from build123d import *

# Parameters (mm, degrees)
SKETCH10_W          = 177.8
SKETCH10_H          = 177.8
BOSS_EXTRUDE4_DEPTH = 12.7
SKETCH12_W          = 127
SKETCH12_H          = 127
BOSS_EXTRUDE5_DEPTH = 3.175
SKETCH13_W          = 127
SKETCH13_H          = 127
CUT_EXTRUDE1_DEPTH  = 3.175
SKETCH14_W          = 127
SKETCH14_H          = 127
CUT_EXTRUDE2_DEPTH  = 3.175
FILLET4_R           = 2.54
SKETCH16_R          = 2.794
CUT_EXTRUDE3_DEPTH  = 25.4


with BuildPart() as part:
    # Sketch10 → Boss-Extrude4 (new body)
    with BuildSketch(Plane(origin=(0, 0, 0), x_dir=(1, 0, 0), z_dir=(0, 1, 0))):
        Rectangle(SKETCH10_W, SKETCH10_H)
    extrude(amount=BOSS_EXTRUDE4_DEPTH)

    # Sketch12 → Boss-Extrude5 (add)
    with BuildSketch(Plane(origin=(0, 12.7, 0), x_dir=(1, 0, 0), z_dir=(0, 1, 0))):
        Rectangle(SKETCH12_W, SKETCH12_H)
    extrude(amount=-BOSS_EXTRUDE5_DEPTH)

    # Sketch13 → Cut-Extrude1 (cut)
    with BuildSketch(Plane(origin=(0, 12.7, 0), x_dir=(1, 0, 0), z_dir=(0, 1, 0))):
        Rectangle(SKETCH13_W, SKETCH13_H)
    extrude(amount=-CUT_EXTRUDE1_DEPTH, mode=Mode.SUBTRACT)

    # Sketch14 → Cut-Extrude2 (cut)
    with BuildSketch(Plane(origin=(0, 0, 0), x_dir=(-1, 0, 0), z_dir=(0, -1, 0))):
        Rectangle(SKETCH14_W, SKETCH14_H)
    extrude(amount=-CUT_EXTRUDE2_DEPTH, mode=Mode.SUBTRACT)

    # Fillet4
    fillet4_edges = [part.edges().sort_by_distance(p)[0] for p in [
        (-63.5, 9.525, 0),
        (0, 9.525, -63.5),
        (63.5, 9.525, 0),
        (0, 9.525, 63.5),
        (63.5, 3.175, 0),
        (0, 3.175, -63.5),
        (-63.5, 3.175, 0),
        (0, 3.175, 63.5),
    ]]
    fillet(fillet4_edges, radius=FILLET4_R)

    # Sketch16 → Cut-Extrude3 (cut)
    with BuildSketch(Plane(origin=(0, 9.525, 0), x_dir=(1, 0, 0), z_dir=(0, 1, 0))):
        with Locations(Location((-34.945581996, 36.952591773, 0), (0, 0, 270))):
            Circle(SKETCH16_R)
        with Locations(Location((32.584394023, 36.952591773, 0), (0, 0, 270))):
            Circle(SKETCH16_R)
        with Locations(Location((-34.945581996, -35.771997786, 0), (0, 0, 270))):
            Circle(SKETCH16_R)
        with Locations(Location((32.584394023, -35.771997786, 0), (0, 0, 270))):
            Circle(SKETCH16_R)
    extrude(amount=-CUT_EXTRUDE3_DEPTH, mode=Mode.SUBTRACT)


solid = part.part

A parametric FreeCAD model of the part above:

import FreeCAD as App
import Part
import Sketcher

V = App.Vector
Q = App.Units.Quantity


def edges_at(feature, points):
    """Names of the edges that pass closest to the given points."""
    edges = feature.Shape.Edges
    near = lambda p: min(range(len(edges)), key=lambda i: edges[i].distToShape(Part.Vertex(*p))[0])
    return sorted({f"Edge{near(p) + 1}" for p in points})

doc = App.newDocument("Part")
body = doc.addObject("PartDesign::Body", "Body")

# Sketch on XZ plane
sketch1 = body.newObject("Sketcher::SketchObject", "Sketch")
sketch1.AttachmentSupport = (doc.getObject("XZ_Plane"), [""])
sketch1.MapMode = "FlatFace"
sketch1.addGeometry(Part.LineSegment(V(-88.9, -88.9, 0), V(-88.9, 88.9, 0)), False)
sketch1.addGeometry(Part.LineSegment(V(-88.9, 88.9, 0), V(88.9, 88.9, 0)), False)
sketch1.addGeometry(Part.LineSegment(V(88.9, 88.9, 0), V(88.9, -88.9, 0)), False)
sketch1.addGeometry(Part.LineSegment(V(88.9, -88.9, 0), V(-88.9, -88.9, 0)), False)
sketch1.addConstraint(Sketcher.Constraint("Coincident", 0, 2, 1, 1))
sketch1.addConstraint(Sketcher.Constraint("Coincident", 1, 2, 2, 1))
sketch1.addConstraint(Sketcher.Constraint("Coincident", 2, 2, 3, 1))
sketch1.addConstraint(Sketcher.Constraint("Coincident", 3, 2, 0, 1))
sketch1.addConstraint(Sketcher.Constraint("Vertical", 0))
sketch1.addConstraint(Sketcher.Constraint("Horizontal", 1))
sketch1.addConstraint(Sketcher.Constraint("Vertical", 2))
sketch1.addConstraint(Sketcher.Constraint("Horizontal", 3))
sketch1.addConstraint(Sketcher.Constraint("Symmetric", 0, 2, 2, 2, -1, 1))
sketch1.addConstraint(Sketcher.Constraint("Equal", 3, 0))
sketch1.addConstraint(Sketcher.Constraint("DistanceX", 1, 1, 1, 2, Q("7 in")))
pad1 = body.newObject("PartDesign::Pad", "Pad")
pad1.Profile = sketch1
pad1.Length = Q("0.5 in")
pad1.Reversed = True

# Sketch on XZ plane
sketch2 = body.newObject("Sketcher::SketchObject", "Sketch001")
sketch2.AttachmentSupport = (doc.getObject("XZ_Plane"), [""])
sketch2.MapMode = "FlatFace"
sketch2.AttachmentOffset = App.Placement(V(0, 0, -0.5 * 25.4), App.Rotation())
sketch2.addGeometry(Part.LineSegment(V(-63.5, -63.5, 0), V(-63.5, 63.5, 0)), False)
sketch2.addGeometry(Part.LineSegment(V(-63.5, 63.5, 0), V(63.5, 63.5, 0)), False)
sketch2.addGeometry(Part.LineSegment(V(63.5, 63.5, 0), V(63.5, -63.5, 0)), False)
sketch2.addGeometry(Part.LineSegment(V(63.5, -63.5, 0), V(-63.5, -63.5, 0)), False)
sketch2.addConstraint(Sketcher.Constraint("Coincident", 0, 2, 1, 1))
sketch2.addConstraint(Sketcher.Constraint("Coincident", 1, 2, 2, 1))
sketch2.addConstraint(Sketcher.Constraint("Coincident", 2, 2, 3, 1))
sketch2.addConstraint(Sketcher.Constraint("Coincident", 3, 2, 0, 1))
sketch2.addConstraint(Sketcher.Constraint("Vertical", 0))
sketch2.addConstraint(Sketcher.Constraint("Horizontal", 1))
sketch2.addConstraint(Sketcher.Constraint("Vertical", 2))
sketch2.addConstraint(Sketcher.Constraint("Horizontal", 3))
sketch2.addConstraint(Sketcher.Constraint("Symmetric", 0, 2, 2, 2, -1, 1))
sketch2.addConstraint(Sketcher.Constraint("Equal", 3, 0))
sketch2.addConstraint(Sketcher.Constraint("DistanceX", 1, 1, 1, 2, Q("5 in")))
pad2 = body.newObject("PartDesign::Pad", "Pad001")
pad2.Profile = sketch2
pad2.Length = Q("0.125 in")

# Sketch on XZ plane
sketch3 = body.newObject("Sketcher::SketchObject", "Sketch002")
sketch3.AttachmentSupport = (doc.getObject("XZ_Plane"), [""])
sketch3.MapMode = "FlatFace"
sketch3.AttachmentOffset = App.Placement(V(0, 0, -0.5 * 25.4), App.Rotation())
sketch3.addGeometry(Part.LineSegment(V(-63.5, -63.5, 0), V(-63.5, 63.5, 0)), False)
sketch3.addGeometry(Part.LineSegment(V(-63.5, 63.5, 0), V(63.5, 63.5, 0)), False)
sketch3.addGeometry(Part.LineSegment(V(63.5, 63.5, 0), V(63.5, -63.5, 0)), False)
sketch3.addGeometry(Part.LineSegment(V(63.5, -63.5, 0), V(-63.5, -63.5, 0)), False)
sketch3.addConstraint(Sketcher.Constraint("Coincident", 0, 2, 1, 1))
sketch3.addConstraint(Sketcher.Constraint("Coincident", 1, 2, 2, 1))
sketch3.addConstraint(Sketcher.Constraint("Coincident", 2, 2, 3, 1))
sketch3.addConstraint(Sketcher.Constraint("Coincident", 3, 2, 0, 1))
sketch3.addConstraint(Sketcher.Constraint("Vertical", 0))
sketch3.addConstraint(Sketcher.Constraint("Horizontal", 1))
sketch3.addConstraint(Sketcher.Constraint("Vertical", 2))
sketch3.addConstraint(Sketcher.Constraint("Horizontal", 3))
sketch3.addConstraint(Sketcher.Constraint("Symmetric", 0, 2, 2, 2, -1, 1))
sketch3.addConstraint(Sketcher.Constraint("Equal", 3, 0))
sketch3.addConstraint(Sketcher.Constraint("DistanceX", 1, 1, 1, 2, Q("5 in")))
pocket1 = body.newObject("PartDesign::Pocket", "Pocket")
pocket1.Profile = sketch3
pocket1.Length = Q("0.125 in")
pocket1.Reversed = True

# Sketch on XZ plane
sketch4 = body.newObject("Sketcher::SketchObject", "Sketch003")
sketch4.AttachmentSupport = (doc.getObject("XZ_Plane"), [""])
sketch4.MapMode = "FlatFace"
sketch4.addGeometry(Part.LineSegment(V(63.5, -63.5, 0), V(63.5, 63.5, 0)), False)
sketch4.addGeometry(Part.LineSegment(V(63.5, 63.5, 0), V(-63.5, 63.5, 0)), False)
sketch4.addGeometry(Part.LineSegment(V(-63.5, 63.5, 0), V(-63.5, -63.5, 0)), False)
sketch4.addGeometry(Part.LineSegment(V(-63.5, -63.5, 0), V(63.5, -63.5, 0)), False)
sketch4.addConstraint(Sketcher.Constraint("Coincident", 0, 2, 1, 1))
sketch4.addConstraint(Sketcher.Constraint("Coincident", 1, 2, 2, 1))
sketch4.addConstraint(Sketcher.Constraint("Coincident", 2, 2, 3, 1))
sketch4.addConstraint(Sketcher.Constraint("Coincident", 3, 2, 0, 1))
sketch4.addConstraint(Sketcher.Constraint("Vertical", 0))
sketch4.addConstraint(Sketcher.Constraint("Horizontal", 1))
sketch4.addConstraint(Sketcher.Constraint("Vertical", 2))
sketch4.addConstraint(Sketcher.Constraint("Horizontal", 3))
sketch4.addConstraint(Sketcher.Constraint("Symmetric", 0, 2, 2, 2, -1, 1))
sketch4.addConstraint(Sketcher.Constraint("Equal", 3, 0))
sketch4.addConstraint(Sketcher.Constraint("DistanceX", 1, 2, 1, 1, Q("5 in")))
pocket2 = body.newObject("PartDesign::Pocket", "Pocket001")
pocket2.Profile = sketch4
pocket2.Length = Q("0.125 in")
doc.recompute()

fillet = body.newObject("PartDesign::Fillet", "Fillet")
fillet.Base = (pocket2, edges_at(pocket2, [
    (-63.5, 9.525, 0),
    (0, 9.525, -63.5),
    (63.5, 9.525, 0),
    (0, 9.525, 63.5),
    (63.5, 3.175, 0),
    (0, 3.175, -63.5),
    (-63.5, 3.175, 0),
    (0, 3.175, 63.5),
]))
fillet.Radius = Q("0.1 in")

# Sketch on XZ plane
sketch5 = body.newObject("Sketcher::SketchObject", "Sketch004")
sketch5.AttachmentSupport = (doc.getObject("XZ_Plane"), [""])
sketch5.MapMode = "FlatFace"
sketch5.AttachmentOffset = App.Placement(V(0, 0, -0.375 * 25.4), App.Rotation())
sketch5.addGeometry(Part.Circle(V(-34.945582, -36.952592, 0), V(0, 0, 1), 2.794), False)
sketch5.addGeometry(Part.Circle(V(32.584394, -36.952592, 0), V(0, 0, 1), 2.794), False)
sketch5.addGeometry(Part.Circle(V(-34.945582, 35.771998, 0), V(0, 0, 1), 2.794), False)
sketch5.addGeometry(Part.Circle(V(32.584394, 35.771998, 0), V(0, 0, 1), 2.794), False)
sketch5.addConstraint(Sketcher.Constraint("Equal", 0, 1))
sketch5.addConstraint(Sketcher.Constraint("Equal", 1, 2))
sketch5.addConstraint(Sketcher.Constraint("Equal", 2, 3))
sketch5.addConstraint(Sketcher.Constraint("Horizontal", 0, 3, 1, 3))
sketch5.addConstraint(Sketcher.Constraint("Horizontal", 2, 3, 3, 3))
sketch5.addConstraint(Sketcher.Constraint("Vertical", 0, 3, 2, 3))
sketch5.addConstraint(Sketcher.Constraint("Vertical", 1, 3, 3, 3))
sketch5.addConstraint(Sketcher.Constraint("Diameter", 0, Q("0.22 in")))
sketch5.addConstraint(Sketcher.Constraint("DistanceX", 0, 3, -1, 1, 34.945582))
sketch5.addConstraint(Sketcher.Constraint("DistanceY", 0, 3, -1, 1, 36.952592))
sketch5.addConstraint(Sketcher.Constraint("DistanceY", 0, 3, 2, 3, 72.72459))
sketch5.addConstraint(Sketcher.Constraint("DistanceX", -1, 1, 1, 3, 32.584394))
pocket3 = body.newObject("PartDesign::Pocket", "Pocket002")
pocket3.Profile = sketch5
pocket3.Length = Q("1 in")
pocket3.Reversed = True

doc.recompute()
